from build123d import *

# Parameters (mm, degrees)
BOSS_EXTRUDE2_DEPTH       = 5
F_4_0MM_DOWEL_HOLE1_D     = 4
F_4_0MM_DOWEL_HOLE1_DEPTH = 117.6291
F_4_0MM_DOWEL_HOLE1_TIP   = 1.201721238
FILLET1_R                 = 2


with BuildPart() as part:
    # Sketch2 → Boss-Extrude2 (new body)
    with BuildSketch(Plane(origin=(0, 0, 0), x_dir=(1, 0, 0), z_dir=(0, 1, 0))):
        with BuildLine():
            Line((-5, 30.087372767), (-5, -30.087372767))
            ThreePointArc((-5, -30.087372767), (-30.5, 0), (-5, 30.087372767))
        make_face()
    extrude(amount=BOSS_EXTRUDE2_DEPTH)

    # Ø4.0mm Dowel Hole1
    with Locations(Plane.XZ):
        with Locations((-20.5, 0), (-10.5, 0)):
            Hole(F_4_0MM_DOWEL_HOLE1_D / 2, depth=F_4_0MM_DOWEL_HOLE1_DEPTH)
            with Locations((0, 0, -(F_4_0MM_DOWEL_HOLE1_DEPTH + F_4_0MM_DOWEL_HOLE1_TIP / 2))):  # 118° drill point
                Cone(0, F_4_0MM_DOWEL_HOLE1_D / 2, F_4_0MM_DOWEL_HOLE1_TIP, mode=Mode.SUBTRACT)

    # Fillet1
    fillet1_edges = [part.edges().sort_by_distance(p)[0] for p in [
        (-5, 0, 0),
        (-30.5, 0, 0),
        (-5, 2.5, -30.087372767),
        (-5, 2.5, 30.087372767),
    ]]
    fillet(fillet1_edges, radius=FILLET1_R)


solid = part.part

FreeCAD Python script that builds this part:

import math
import FreeCAD as App
import Part
import Sketcher


def edges_at(feature, points):
    """Names of the edges that pass closest to the given points."""
    edges = feature.Shape.Edges
    near = lambda p: min(range(len(edges)), key=lambda i: edges[i].distToShape(Part.Vertex(*p))[0])
    return sorted({f"Edge{near(p) + 1}" for p in points})

doc = App.newDocument("Part")
body = doc.addObject("PartDesign::Body", "Body")

# Sketch on XZ plane
sketch1 = doc.addObject("Sketcher::SketchObject", "Sketch")
body.addObject(sketch1)
sketch1.AttachmentSupport = (doc.XZ_Plane, [""])
sketch1.MapMode = "FlatFace"
sketch1.addGeometry([
    Part.LineSegment(App.Vector(-5, 30, 0), App.Vector(-5, -30, 0)),
    Part.ArcOfCircle(Part.Circle(App.Vector(0, 0, 0), App.Vector(0, 0, 1), 30), math.radians(99), math.radians(261)),
], False)
sketch1.addConstraint([
    Sketcher.Constraint("Coincident", 0, 1, 1, 1),
    Sketcher.Constraint("Coincident", 1, 2, 0, 2),
    Sketcher.Constraint("Vertical", 0),
    Sketcher.Constraint("Coincident", 1, 3, -1, 1),
    Sketcher.Constraint("Radius", 1, 30.5),
    Sketcher.Constraint("DistanceX", 0, 1, -1, 1, 5.0),
])
pad1 = doc.addObject("PartDesign::Pad", "Pad")
body.addObject(pad1)
pad1.Profile = sketch1
pad1.Length = 5
pad1.Reversed = True

# Sketch on XZ plane
sketch2 = doc.addObject("Sketcher::SketchObject", "Sketch001")
body.addObject(sketch2)
sketch2.AttachmentSupport = (doc.XZ_Plane, [""])
sketch2.MapMode = "FlatFace"
sketch2.addGeometry([
    Part.Circle(App.Vector(-20.5, 0, 0), App.Vector(0, 0, 1), 2),
    Part.Circle(App.Vector(-10.5, 0, 0), App.Vector(0, 0, 1), 2),
], False)
sketch2.addConstraint([
    Sketcher.Constraint("Equal", 0, 1),
    Sketcher.Constraint("PointOnObject", 0, 3, -1),
    Sketcher.Constraint("PointOnObject", 1, 3, -1),
    Sketcher.Constraint("Diameter", 0, 4.0),
    Sketcher.Constraint("DistanceX", 0, 3, 1, 3, 10.0),
    Sketcher.Constraint("DistanceX", 0, 3, -1, 1, 20.5),
])
doc.recompute()
hole = doc.addObject("PartDesign::Hole", "Hole")
body.addObject(hole)
hole.Profile = sketch2
hole.ThreadType = "None"
hole.Diameter = 4
hole.DepthType = "Dimension"
hole.Depth = 117.6291
hole.DrillPoint = "Angled"
hole.DrillPointAngle = 118
doc.recompute()

fillet = doc.addObject("PartDesign::Fillet", "Fillet")
body.addObject(fillet)
fillet.Base = (hole, edges_at(hole, [
    (-5, 0, 0),
    (-30.5, 0, 0),
    (-5, 2.5, -30.087),
    (-5, 2.5, 30.087),
]))
fillet.Radius = 2

doc.recompute()
